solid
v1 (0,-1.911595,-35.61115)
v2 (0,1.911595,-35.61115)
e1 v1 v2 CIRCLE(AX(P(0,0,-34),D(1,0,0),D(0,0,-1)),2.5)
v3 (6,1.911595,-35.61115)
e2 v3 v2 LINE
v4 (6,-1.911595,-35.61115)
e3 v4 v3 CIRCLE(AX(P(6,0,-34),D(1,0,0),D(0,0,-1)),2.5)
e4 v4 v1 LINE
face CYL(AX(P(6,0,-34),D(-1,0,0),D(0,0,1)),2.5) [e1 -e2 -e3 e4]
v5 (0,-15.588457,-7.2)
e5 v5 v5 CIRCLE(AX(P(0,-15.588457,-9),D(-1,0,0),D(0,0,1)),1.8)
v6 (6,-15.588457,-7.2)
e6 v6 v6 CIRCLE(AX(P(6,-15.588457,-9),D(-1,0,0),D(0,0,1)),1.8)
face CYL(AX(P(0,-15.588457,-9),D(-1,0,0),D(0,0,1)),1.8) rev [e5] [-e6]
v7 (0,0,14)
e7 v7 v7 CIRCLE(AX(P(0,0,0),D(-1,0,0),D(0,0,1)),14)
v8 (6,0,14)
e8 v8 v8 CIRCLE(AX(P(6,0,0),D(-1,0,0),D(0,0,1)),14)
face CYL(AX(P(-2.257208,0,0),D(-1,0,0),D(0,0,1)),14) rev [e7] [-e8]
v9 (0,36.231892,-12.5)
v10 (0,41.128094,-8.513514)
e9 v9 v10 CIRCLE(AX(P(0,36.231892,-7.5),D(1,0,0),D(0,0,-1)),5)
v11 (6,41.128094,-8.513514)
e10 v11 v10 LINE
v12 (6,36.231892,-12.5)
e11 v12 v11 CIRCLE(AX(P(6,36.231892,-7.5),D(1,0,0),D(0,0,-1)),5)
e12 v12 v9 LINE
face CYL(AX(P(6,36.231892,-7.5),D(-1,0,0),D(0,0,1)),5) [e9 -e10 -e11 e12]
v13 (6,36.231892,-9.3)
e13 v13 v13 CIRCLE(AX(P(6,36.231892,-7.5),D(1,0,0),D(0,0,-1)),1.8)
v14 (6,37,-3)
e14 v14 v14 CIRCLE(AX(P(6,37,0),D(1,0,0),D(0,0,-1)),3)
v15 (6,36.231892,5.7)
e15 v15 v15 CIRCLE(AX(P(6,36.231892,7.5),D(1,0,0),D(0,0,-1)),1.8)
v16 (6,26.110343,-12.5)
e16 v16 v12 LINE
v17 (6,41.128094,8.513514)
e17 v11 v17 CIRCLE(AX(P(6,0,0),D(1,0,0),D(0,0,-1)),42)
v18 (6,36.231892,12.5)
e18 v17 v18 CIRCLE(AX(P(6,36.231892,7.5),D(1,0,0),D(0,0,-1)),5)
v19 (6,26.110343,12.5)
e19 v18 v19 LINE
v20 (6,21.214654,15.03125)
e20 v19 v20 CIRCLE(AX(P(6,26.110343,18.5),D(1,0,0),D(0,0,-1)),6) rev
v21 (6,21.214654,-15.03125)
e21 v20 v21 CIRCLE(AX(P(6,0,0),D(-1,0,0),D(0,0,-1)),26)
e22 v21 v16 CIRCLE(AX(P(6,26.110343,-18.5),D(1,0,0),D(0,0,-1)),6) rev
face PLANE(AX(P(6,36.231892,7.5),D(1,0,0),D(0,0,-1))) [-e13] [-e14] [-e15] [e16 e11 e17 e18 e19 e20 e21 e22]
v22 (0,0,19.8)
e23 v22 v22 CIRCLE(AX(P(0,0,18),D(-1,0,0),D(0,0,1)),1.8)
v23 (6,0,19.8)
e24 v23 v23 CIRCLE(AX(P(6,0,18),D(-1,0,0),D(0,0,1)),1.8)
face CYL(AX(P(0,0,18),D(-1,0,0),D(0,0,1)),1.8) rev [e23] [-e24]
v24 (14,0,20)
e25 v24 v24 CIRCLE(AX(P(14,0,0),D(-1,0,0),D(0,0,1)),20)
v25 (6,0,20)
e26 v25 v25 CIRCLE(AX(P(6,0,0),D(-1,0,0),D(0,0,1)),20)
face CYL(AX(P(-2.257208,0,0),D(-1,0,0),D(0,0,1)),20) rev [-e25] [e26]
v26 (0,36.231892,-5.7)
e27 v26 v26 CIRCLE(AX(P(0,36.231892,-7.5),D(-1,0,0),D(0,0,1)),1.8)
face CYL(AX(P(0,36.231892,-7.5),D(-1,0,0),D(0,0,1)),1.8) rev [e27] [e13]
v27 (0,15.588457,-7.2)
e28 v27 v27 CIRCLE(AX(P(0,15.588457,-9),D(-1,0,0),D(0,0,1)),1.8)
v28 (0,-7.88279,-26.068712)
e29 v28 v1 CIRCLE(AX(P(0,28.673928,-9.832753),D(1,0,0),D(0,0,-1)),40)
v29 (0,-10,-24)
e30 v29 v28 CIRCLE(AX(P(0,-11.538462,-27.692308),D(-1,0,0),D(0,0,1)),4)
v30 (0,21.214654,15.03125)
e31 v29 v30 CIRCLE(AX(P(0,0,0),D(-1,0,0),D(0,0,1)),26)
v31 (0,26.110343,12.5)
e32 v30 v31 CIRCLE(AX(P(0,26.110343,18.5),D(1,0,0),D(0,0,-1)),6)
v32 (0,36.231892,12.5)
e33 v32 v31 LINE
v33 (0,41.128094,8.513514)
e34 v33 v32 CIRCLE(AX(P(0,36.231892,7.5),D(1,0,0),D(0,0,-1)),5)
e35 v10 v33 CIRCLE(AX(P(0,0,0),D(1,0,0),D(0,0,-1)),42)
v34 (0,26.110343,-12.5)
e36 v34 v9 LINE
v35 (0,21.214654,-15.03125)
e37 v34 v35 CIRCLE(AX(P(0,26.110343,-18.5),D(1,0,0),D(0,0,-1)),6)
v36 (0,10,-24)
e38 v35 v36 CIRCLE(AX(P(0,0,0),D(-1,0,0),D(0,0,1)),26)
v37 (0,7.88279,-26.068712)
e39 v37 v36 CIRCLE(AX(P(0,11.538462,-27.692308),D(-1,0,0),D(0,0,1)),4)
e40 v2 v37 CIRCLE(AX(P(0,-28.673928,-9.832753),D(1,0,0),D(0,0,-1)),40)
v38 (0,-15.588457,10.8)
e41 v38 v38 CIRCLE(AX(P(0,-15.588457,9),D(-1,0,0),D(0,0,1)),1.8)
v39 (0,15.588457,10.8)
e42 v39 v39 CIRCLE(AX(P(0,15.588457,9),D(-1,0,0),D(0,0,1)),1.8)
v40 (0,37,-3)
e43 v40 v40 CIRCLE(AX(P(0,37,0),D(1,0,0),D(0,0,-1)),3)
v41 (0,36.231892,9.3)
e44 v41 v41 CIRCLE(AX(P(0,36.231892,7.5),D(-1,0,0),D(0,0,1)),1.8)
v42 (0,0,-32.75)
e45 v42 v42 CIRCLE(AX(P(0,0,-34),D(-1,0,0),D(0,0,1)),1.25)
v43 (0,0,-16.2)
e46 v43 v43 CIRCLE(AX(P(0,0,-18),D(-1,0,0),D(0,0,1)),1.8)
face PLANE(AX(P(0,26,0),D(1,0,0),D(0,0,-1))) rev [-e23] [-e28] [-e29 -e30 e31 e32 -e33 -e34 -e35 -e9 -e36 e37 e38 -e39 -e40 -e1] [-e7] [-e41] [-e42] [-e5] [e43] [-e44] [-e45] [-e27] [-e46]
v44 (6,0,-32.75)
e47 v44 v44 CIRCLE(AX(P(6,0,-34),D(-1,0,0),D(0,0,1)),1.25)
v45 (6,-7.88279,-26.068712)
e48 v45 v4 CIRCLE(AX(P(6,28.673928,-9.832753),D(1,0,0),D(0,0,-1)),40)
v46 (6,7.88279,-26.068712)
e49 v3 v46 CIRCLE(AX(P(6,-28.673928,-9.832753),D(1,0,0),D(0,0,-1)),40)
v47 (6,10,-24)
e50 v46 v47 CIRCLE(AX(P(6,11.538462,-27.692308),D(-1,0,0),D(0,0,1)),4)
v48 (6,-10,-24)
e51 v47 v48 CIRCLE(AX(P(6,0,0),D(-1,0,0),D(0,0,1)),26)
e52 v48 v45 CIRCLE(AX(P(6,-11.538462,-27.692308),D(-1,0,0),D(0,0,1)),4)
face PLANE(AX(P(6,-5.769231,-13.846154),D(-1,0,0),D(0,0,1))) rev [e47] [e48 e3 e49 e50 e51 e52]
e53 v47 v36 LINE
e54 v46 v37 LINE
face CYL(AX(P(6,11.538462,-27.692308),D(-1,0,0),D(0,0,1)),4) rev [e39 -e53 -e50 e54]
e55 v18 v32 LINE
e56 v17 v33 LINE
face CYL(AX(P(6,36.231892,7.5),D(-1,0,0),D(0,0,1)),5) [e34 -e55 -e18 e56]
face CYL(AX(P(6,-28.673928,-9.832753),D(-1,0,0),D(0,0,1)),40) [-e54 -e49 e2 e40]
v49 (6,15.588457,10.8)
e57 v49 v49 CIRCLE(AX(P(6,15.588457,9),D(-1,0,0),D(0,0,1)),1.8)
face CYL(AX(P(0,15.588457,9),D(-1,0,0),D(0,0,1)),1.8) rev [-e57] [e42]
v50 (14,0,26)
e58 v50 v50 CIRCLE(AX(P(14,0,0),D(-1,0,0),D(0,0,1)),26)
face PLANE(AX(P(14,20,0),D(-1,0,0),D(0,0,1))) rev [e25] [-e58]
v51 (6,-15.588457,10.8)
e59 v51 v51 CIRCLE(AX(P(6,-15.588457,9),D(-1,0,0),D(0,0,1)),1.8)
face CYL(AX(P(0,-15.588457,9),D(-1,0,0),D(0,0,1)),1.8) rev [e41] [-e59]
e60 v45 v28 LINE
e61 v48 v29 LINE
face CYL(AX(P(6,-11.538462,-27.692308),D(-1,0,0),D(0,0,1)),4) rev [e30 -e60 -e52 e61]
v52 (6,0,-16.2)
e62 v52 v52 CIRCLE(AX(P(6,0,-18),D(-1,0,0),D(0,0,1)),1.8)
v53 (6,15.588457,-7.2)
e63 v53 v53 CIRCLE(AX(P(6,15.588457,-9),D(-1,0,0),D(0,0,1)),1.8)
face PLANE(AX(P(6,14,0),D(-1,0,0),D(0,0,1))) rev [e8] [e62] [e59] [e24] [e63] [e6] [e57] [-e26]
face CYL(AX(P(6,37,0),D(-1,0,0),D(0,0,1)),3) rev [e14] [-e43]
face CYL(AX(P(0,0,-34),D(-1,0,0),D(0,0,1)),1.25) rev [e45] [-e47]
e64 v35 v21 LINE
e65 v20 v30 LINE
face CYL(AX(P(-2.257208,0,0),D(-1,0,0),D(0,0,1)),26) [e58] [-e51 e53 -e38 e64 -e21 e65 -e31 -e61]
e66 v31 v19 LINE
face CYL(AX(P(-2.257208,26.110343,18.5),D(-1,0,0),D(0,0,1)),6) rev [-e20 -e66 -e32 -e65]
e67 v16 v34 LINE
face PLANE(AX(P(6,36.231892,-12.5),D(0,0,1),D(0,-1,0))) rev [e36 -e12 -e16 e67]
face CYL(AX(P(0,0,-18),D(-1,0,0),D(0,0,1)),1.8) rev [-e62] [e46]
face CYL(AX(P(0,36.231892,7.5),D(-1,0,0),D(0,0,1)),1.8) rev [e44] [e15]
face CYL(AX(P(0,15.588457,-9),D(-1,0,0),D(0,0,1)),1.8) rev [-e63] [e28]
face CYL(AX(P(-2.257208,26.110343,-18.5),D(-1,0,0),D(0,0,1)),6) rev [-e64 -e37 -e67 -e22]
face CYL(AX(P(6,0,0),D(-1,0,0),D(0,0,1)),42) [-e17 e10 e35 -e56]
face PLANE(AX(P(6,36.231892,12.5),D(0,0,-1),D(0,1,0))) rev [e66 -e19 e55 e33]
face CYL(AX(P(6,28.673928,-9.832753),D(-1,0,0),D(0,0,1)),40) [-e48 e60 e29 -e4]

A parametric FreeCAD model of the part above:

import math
import FreeCAD as App
import Part
import Sketcher
from FreeCAD import Vector
Q = App.Units.Quantity


def edges_at(feature, points):
    """Names of the edges that pass closest to the given points."""
    edges = feature.Shape.Edges
    near = lambda p: min(range(len(edges)), key=lambda i: edges[i].distToShape(Part.Vertex(*p))[0])
    return sorted({f"Edge{near(p) + 1}" for p in points})


def add_polygon(sketch, points):
    """Adds a closed chain of lines whose ends are joined by coincident constraints."""
    first, n = sketch.GeometryCount, len(points)
    for a, b in zip(points, points[1:] + points[:1]):
        sketch.addGeometry(Part.LineSegment(App.Vector(*a, 0), App.Vector(*b, 0)), False)
    for i in range(n):
        sketch.addConstraint(Sketcher.Constraint("Coincident", first + i, 2, first + (i + 1) % n, 1))

doc = App.newDocument("Part")
params = doc.addObject("Spreadsheet::Sheet", "Params")
for row, (alias, value) in enumerate([
    ("sketch1_width", "6 mm"),
    ("sketch1_width2", "8 mm"),
    ("revolution_angle", "360 deg"),
    ("sketch2_radius", "4 mm"),
    ("sketch2_radius2", "40 mm"),
    ("sketch2_radius3", "26 mm"),
    ("sketch2_radius4", "2.5 mm"),
    ("pad1_length", "6 mm"),
    ("sketch3_diameter", "2.5 mm"),
    ("hole_diameter", "2.5 mm"),
    ("sketch4_diameter", "6 mm"),
    ("sketch4_radius", "26 mm"),
    ("sketch4_radius2", "5 mm"),
    ("sketch4_radius3", "42 mm"),
    ("pad2_length", "6 mm"),
    ("sketch5_diameter", "3.6 mm"),
    ("hole2_diameter", "3.6 mm"),
    ("fillet_radius", "6 mm"),
    ("sketch6_diameter", "3.6 mm"),
    ("hole3_diameter", "3.6 mm"),
], start=1):
    params.set(f"A{row}", alias)
    params.set(f"B{row}", "=" + value)
    params.setAlias(f"B{row}", alias)

body = doc.addObject("PartDesign::Body", "Body")

sketch1 = body.newObject("Sketcher::SketchObject", "Sketch")
sketch1.AttachmentSupport = (doc.getObject("XY_Plane"), [""])
sketch1.MapMode = "FlatFace"
add_polygon(sketch1, [(0, 14), (6, 14), (6, 20), (14, 20), (14, 26), (0, 26)])
sketch1.addConstraint(Sketcher.Constraint("Horizontal", 0))
sketch1.addConstraint(Sketcher.Constraint("Vertical", 1))
sketch1.addConstraint(Sketcher.Constraint("Horizontal", 2))
sketch1.addConstraint(Sketcher.Constraint("Vertical", 3))
sketch1.addConstraint(Sketcher.Constraint("Horizontal", 4))
sketch1.addConstraint(Sketcher.Constraint("Vertical", 5))
sketch1.addConstraint(Sketcher.Constraint("PointOnObject", 4, 2, -2))
sketch1.addConstraint(Sketcher.Constraint("Equal", 0, 1))
sketch1.addConstraint(Sketcher.Constraint("Equal", 1, 3))
sketch1.addConstraint(Sketcher.Constraint("DistanceX", 0, 1, 0, 2, Q("6 mm")))
sketch1.addConstraint(Sketcher.Constraint("DistanceX", 2, 1, 2, 2, Q("8 mm")))
sketch1.addConstraint(Sketcher.Constraint("DistanceY", -1, 1, 0, 2, Q("14 mm")))
sketch1.setExpression("Constraints[15]", "Params.sketch1_width")
sketch1.setExpression("Constraints[16]", "Params.sketch1_width2")
revolution = body.newObject("PartDesign::Revolution", "Revolution")
revolution.Profile = sketch1
revolution.ReferenceAxis = (sketch1, ["H_Axis"])
revolution.setExpression("Angle", "Params.revolution_angle")

sketch2 = body.newObject("Sketcher::SketchObject", "Sketch001")
sketch2.AttachmentSupport = (doc.getObject("YZ_Plane"), [""])
sketch2.MapMode = "FlatFace"
sketch2.addGeometry(Part.ArcOfCircle(Part.Circle(Vector(-11.538462, -27.692308, 0), Vector(0, 0, 1), 4), math.radians(23.947474), math.radians(67.380135)), False)
sketch2.addGeometry(Part.ArcOfCircle(Part.Circle(Vector(28.673928, -9.832753, 0), Vector(0, 0, 1), 40), math.radians(-156.052526), math.radians(-139.874806)), False)
sketch2.addGeometry(Part.ArcOfCircle(Part.Circle(Vector(0, -34, 0), Vector(0, 0, 1), 2.5), math.radians(-139.874806), math.radians(-40.125194)), False)
sketch2.addGeometry(Part.ArcOfCircle(Part.Circle(Vector(-28.673928, -9.832753, 0), Vector(0, 0, 1), 40), math.radians(-40.125194), math.radians(-23.947474)), False)
sketch2.addGeometry(Part.ArcOfCircle(Part.Circle(Vector(11.538462, -27.692308, 0), Vector(0, 0, 1), 4), math.radians(112.619865), math.radians(156.052526)), False)
sketch2.addGeometry(Part.ArcOfCircle(Part.Circle(Vector(0, 0, 0), Vector(0, 0, 1), 26), math.radians(-112.619865), math.radians(-67.380135)), False)
sketch2.addConstraint(Sketcher.Constraint("Tangent", 0, 1, 1, 1))
sketch2.addConstraint(Sketcher.Constraint("Tangent", 1, 2, 2, 1))
sketch2.addConstraint(Sketcher.Constraint("Tangent", 2, 2, 3, 1))
sketch2.addConstraint(Sketcher.Constraint("Tangent", 3, 2, 4, 2))
sketch2.addConstraint(Sketcher.Constraint("Tangent", 4, 1, 5, 2))
sketch2.addConstraint(Sketcher.Constraint("Tangent", 5, 1, 0, 2))
sketch2.addConstraint(Sketcher.Constraint("Coincident", 5, 3, -1, 1))
sketch2.addConstraint(Sketcher.Constraint("Equal", 1, 3))
sketch2.addConstraint(Sketcher.Constraint("Equal", 0, 4))
sketch2.addConstraint(Sketcher.Constraint("Symmetric", 1, 3, 3, 3, -2))
sketch2.addConstraint(Sketcher.Constraint("Radius", 0, Q("4 mm")))
sketch2.addConstraint(Sketcher.Constraint("Radius", 1, Q("40 mm")))
sketch2.addConstraint(Sketcher.Constraint("Radius", 5, Q("26 mm")))
sketch2.addConstraint(Sketcher.Constraint("Radius", 2, Q("2.5 mm")))
sketch2.addConstraint(Sketcher.Constraint("DistanceY", 2, 3, -1, 1, Q("34 mm")))
sketch2.addConstraint(Sketcher.Constraint("DistanceX", -1, 1, 4, 1, Q("10 mm")))
sketch2.setExpression("Constraints[10]", "Params.sketch2_radius")
sketch2.setExpression("Constraints[11]", "Params.sketch2_radius2")
sketch2.setExpression("Constraints[12]", "Params.sketch2_radius3")
sketch2.setExpression("Constraints[13]", "Params.sketch2_radius4")
pad1 = body.newObject("PartDesign::Pad", "Pad")
pad1.Profile = sketch2
pad1.setExpression("Length", "Params.pad1_length")

sketch3 = body.newObject("Sketcher::SketchObject", "Sketch002")
sketch3.AttachmentSupport = (doc.getObject("YZ_Plane"), [""])
sketch3.MapMode = "FlatFace"
sketch3.addGeometry(Part.Circle(Vector(0, -34, 0), Vector(0, 0, 1), 1.25), False)
sketch3.addConstraint(Sketcher.Constraint("PointOnObject", 0, 3, -2))
sketch3.addConstraint(Sketcher.Constraint("Diameter", 0, Q("2.5 mm")))
sketch3.addConstraint(Sketcher.Constraint("DistanceY", 0, 3, -1, 1, Q("34 mm")))
sketch3.setExpression("Constraints[1]", "Params.sketch3_diameter")
doc.recompute()
hole = body.newObject("PartDesign::Hole", "Hole")
hole.Profile = sketch3
hole.ThreadType = "None"
hole.setExpression("Diameter", "Params.hole_diameter")
hole.DepthType = "ThroughAll"
hole.Reversed = True

sketch4 = body.newObject("Sketcher::SketchObject", "Sketch003")
sketch4.AttachmentSupport = (doc.getObject("YZ_Plane"), [""])
sketch4.MapMode = "FlatFace"
sketch4.addGeometry(Part.LineSegment(Vector(36.231892, 12.5, 0), Vector(22.798026, 12.5, 0)), False)
sketch4.addGeometry(Part.ArcOfCircle(Part.Circle(Vector(0, 0, 0), Vector(0, 0, 1), 26), math.radians(-28.735654), math.radians(28.735654)), False)
sketch4.addGeometry(Part.LineSegment(Vector(22.798026, -12.5, 0), Vector(36.231892, -12.5, 0)), False)
sketch4.addGeometry(Part.ArcOfCircle(Part.Circle(Vector(36.231892, -7.5, 0), Vector(0, 0, 1), 5), math.radians(-90), math.radians(-11.69505)), False)
sketch4.addGeometry(Part.ArcOfCircle(Part.Circle(Vector(0, 0, 0), Vector(0, 0, 1), 42), math.radians(-11.69505), math.radians(11.69505)), False)
sketch4.addGeometry(Part.ArcOfCircle(Part.Circle(Vector(36.231892, 7.5, 0), Vector(0, 0, 1), 5), math.radians(11.69505), math.radians(90)), False)
sketch4.addGeometry(Part.Circle(Vector(37, 0, 0), Vector(0, 0, 1), 3), False)
sketch4.addConstraint(Sketcher.Constraint("Coincident", 0, 2, 1, 2))
sketch4.addConstraint(Sketcher.Constraint("Coincident", 1, 1, 2, 1))
sketch4.addConstraint(Sketcher.Constraint("Tangent", 2, 2, 3, 1))
sketch4.addConstraint(Sketcher.Constraint("Tangent", 3, 2, 4, 1))
sketch4.addConstraint(Sketcher.Constraint("Tangent", 4, 2, 5, 1))
sketch4.addConstraint(Sketcher.Constraint("Tangent", 5, 2, 0, 1))
sketch4.addConstraint(Sketcher.Constraint("Horizontal", 0))
sketch4.addConstraint(Sketcher.Constraint("Horizontal", 2))
sketch4.addConstraint(Sketcher.Constraint("Coincident", 1, 3, -1, 1))
sketch4.addConstraint(Sketcher.Constraint("Coincident", 4, 3, -1, 1))
sketch4.addConstraint(Sketcher.Constraint("Equal", 3, 5))
sketch4.addConstraint(Sketcher.Constraint("PointOnObject", 6, 3, -1))
sketch4.addConstraint(Sketcher.Constraint("Vertical", 3, 3, 5, 3))
sketch4.addConstraint(Sketcher.Constraint("Diameter", 6, Q("6 mm")))
sketch4.addConstraint(Sketcher.Constraint("Radius", 1, Q("26 mm")))
sketch4.addConstraint(Sketcher.Constraint("Radius", 3, Q("5 mm")))
sketch4.addConstraint(Sketcher.Constraint("Radius", 4, Q("42 mm")))
sketch4.addConstraint(Sketcher.Constraint("DistanceX", -1, 1, 6, 3, Q("37 mm")))
sketch4.addConstraint(Sketcher.Constraint("DistanceY", 3, 3, 5, 3, Q("15 mm")))
sketch4.setExpression("Constraints[13]", "Params.sketch4_diameter")
sketch4.setExpression("Constraints[14]", "Params.sketch4_radius")
sketch4.setExpression("Constraints[15]", "Params.sketch4_radius2")
sketch4.setExpression("Constraints[16]", "Params.sketch4_radius3")
pad2 = body.newObject("PartDesign::Pad", "Pad001")
pad2.Profile = sketch4
pad2.setExpression("Length", "Params.pad2_length")

sketch5 = body.newObject("Sketcher::SketchObject", "Sketch004")
sketch5.AttachmentSupport = (doc.getObject("YZ_Plane"), [""])
sketch5.MapMode = "FlatFace"
sketch5.addGeometry(Part.Circle(Vector(0, 18, 0), Vector(0, 0, 1), 1.8), False)
sketch5.addConstraint(Sketcher.Constraint("PointOnObject", 0, 3, -2))
sketch5.addConstraint(Sketcher.Constraint("Diameter", 0, Q("3.6 mm")))
sketch5.addConstraint(Sketcher.Constraint("DistanceY", -1, 1, 0, 3, Q("18 mm")))
sketch5.setExpression("Constraints[1]", "Params.sketch5_diameter")
doc.recompute()
hole2 = body.newObject("PartDesign::Hole", "Hole001")
hole2.Profile = sketch5
hole2.ThreadType = "None"
hole2.setExpression("Diameter", "Params.hole2_diameter")
hole2.DepthType = "ThroughAll"
hole2.Reversed = True
doc.recompute()

polarpattern = body.newObject("PartDesign::PolarPattern", "PolarPattern")
polarpattern.Originals = [hole2]
polarpattern.Axis = (doc.getObject("X_Axis"), [""])
polarpattern.Angle = 360
polarpattern.Occurrences = 6
body.Tip = polarpattern
doc.recompute()

fillet = body.newObject("PartDesign::Fillet", "Fillet")
fillet.Base = (polarpattern, edges_at(polarpattern, [(3, 22.798, 12.5), (3, 22.798, -12.5)]))
fillet.setExpression("Radius", "Params.fillet_radius")

sketch6 = body.newObject("Sketcher::SketchObject", "Sketch005")
sketch6.AttachmentSupport = (doc.getObject("YZ_Plane"), [""])
sketch6.MapMode = "FlatFace"
sketch6.addGeometry(Part.Circle(Vector(36.231892, 7.5, 0), Vector(0, 0, 1), 1.8), False)
sketch6.addGeometry(Part.Circle(Vector(36.231892, -7.5, 0), Vector(0, 0, 1), 1.8), False)
sketch6.addConstraint(Sketcher.Constraint("Equal", 0, 1))
sketch6.addConstraint(Sketcher.Constraint("Symmetric", 0, 3, 1, 3, -1))
sketch6.addConstraint(Sketcher.Constraint("Diameter", 0, Q("3.6 mm")))
sketch6.addConstraint(Sketcher.Constraint("DistanceY", 1, 3, 0, 3, Q("15 mm")))
sketch6.addConstraint(Sketcher.Constraint("DistanceX", -1, 1, 0, 3, Q("36.231892 mm")))
sketch6.setExpression("Constraints[2]", "Params.sketch6_diameter")
doc.recompute()
hole3 = body.newObject("PartDesign::Hole", "Hole002")
hole3.Profile = sketch6
hole3.ThreadType = "None"
hole3.setExpression("Diameter", "Params.hole3_diameter")
hole3.DepthType = "ThroughAll"
hole3.Reversed = True

doc.recompute()
